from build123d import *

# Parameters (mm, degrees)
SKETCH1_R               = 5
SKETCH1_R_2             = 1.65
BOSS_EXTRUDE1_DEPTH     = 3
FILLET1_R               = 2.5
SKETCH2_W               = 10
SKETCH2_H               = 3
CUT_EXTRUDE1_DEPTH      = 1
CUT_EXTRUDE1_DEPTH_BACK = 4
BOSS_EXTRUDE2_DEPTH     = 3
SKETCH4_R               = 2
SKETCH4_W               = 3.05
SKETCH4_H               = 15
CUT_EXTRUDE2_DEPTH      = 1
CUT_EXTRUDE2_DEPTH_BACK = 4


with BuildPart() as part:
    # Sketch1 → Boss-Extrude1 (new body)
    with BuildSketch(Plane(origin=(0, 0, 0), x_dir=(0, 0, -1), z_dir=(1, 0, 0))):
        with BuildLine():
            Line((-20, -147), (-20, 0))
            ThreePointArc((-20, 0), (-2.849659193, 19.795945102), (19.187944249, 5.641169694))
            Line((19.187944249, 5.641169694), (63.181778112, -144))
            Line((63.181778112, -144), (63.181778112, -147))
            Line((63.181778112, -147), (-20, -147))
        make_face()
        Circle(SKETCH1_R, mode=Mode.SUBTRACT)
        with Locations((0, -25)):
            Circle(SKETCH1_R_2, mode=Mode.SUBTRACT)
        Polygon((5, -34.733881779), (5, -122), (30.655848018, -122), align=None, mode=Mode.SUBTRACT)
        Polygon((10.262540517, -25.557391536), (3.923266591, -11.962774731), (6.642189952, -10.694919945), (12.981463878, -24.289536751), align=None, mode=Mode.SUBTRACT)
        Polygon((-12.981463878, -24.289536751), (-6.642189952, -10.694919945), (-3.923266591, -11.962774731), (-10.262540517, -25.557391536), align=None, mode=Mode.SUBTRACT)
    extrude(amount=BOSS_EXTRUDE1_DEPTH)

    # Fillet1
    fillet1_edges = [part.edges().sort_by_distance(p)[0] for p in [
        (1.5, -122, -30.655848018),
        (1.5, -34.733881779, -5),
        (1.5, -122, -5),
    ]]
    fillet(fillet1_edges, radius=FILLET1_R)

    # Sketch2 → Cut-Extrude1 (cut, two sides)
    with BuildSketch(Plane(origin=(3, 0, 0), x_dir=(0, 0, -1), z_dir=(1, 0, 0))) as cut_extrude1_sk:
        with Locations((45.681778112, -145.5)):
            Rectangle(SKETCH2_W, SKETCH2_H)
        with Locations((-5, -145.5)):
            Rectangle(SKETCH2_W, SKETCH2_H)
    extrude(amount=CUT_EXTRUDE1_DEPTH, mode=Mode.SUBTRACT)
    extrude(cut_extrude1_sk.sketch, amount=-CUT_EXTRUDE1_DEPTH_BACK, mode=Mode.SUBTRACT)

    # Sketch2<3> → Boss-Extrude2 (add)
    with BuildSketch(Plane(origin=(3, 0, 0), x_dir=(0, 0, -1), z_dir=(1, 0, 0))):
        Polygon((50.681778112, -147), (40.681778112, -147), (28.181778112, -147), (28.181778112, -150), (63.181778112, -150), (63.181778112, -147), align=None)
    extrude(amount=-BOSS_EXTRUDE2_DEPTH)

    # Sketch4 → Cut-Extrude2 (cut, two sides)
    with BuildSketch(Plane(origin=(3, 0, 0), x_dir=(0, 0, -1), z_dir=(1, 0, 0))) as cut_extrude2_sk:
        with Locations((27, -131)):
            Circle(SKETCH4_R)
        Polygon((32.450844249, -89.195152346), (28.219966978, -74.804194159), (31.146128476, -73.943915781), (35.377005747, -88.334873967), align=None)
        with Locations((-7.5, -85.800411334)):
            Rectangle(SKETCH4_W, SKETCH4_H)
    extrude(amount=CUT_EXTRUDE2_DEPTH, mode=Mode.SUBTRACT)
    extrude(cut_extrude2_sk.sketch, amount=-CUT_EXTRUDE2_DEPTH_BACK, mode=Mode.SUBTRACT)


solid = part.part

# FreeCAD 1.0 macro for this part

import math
import FreeCAD as App
import Part
import Sketcher
from FreeCAD import Vector
Q = App.Units.Quantity


def edges_at(feature, points):
    """Names of the edges that pass closest to the given points."""
    edges = feature.Shape.Edges
    near = lambda p: min(range(len(edges)), key=lambda i: edges[i].distToShape(Part.Vertex(*p))[0])
    return sorted({f"Edge{near(p) + 1}" for p in points})


def add_polygon(sketch, points):
    """Adds a closed chain of lines whose ends are joined by coincident constraints."""
    first, n = sketch.GeometryCount, len(points)
    for a, b in zip(points, points[1:] + points[:1]):
        sketch.addGeometry(Part.LineSegment(App.Vector(*a, 0), App.Vector(*b, 0)), False)
    for i in range(n):
        sketch.addConstraint(Sketcher.Constraint("Coincident", first + i, 2, first + (i + 1) % n, 1))

doc = App.newDocument("Part")
body = doc.addObject("PartDesign::Body", "Body")

# Sketch on YZ plane
sketch1 = doc.addObject("Sketcher::SketchObject", "Sketch")
body.addObject(sketch1)
sketch1.AttachmentSupport = (doc.YZ_Plane, [""])
sketch1.MapMode = "FlatFace"
sketch1.addGeometry(Part.LineSegment(Vector(0, 20, 0), Vector(-147, 20, 0)), False)  # 0
sketch1.addGeometry(Part.LineSegment(Vector(-147, 20, 0), Vector(-147, -63.2, 0)), False)  # 1
sketch1.addGeometry(Part.LineSegment(Vector(-147, -63.2, 0), Vector(-144, -63.2, 0)), False)  # 2
sketch1.addGeometry(Part.LineSegment(Vector(-144, -63.2, 0), Vector(5.6, -19.2, 0)), False)  # 3
sketch1.addGeometry(Part.ArcOfCircle(Part.Circle(Vector(0, 0, 0), Vector(0, 0, 1), 20), math.radians(-74), math.radians(90)), False)  # 4
add_polygon(sketch1, [(-34.7, -5), (-122, -30.7), (-122, -5)])  # lines 5-7
add_polygon(sketch1, [(-25.6, -10.3), (-12, -3.9), (-10.7, -6.6), (-24.3, -13)])  # lines 8-11
sketch1.addGeometry(Part.Circle(Vector(-25, 0, 0), Vector(0, 0, 1), 1.6), False)  # 12
sketch1.addGeometry(Part.Circle(Vector(0, 0, 0), Vector(0, 0, 1), 5), False)  # 13
add_polygon(sketch1, [(-24.3, 13), (-10.7, 6.6), (-12, 3.9), (-25.6, 10.3)])  # lines 14-17
sketch1.addConstraint(Sketcher.Constraint("Coincident", 0, 2, 1, 1))
sketch1.addConstraint(Sketcher.Constraint("Coincident", 1, 2, 2, 1))
sketch1.addConstraint(Sketcher.Constraint("Coincident", 2, 2, 3, 1))
sketch1.addConstraint(Sketcher.Constraint("Tangent", 3, 2, 4, 1))
sketch1.addConstraint(Sketcher.Constraint("Tangent", 4, 2, 0, 1))
sketch1.addConstraint(Sketcher.Constraint("Horizontal", 0))
sketch1.addConstraint(Sketcher.Constraint("Vertical", 1))
sketch1.addConstraint(Sketcher.Constraint("Horizontal", 2))
sketch1.addConstraint(Sketcher.Constraint("Vertical", 6))
sketch1.addConstraint(Sketcher.Constraint("Horizontal", 7))
sketch1.addConstraint(Sketcher.Constraint("Coincident", 4, 3, -1, 1))
sketch1.addConstraint(Sketcher.Constraint("Coincident", 13, 3, -1, 1))
sketch1.addConstraint(Sketcher.Constraint("Symmetric", 9, 2, 14, 2, -1))
sketch1.addConstraint(Sketcher.Constraint("Symmetric", 8, 2, 15, 2, -1))
sketch1.addConstraint(Sketcher.Constraint("Symmetric", 11, 2, 16, 2, -1))
sketch1.addConstraint(Sketcher.Constraint("Symmetric", 10, 2, 17, 2, -1))
sketch1.addConstraint(Sketcher.Constraint("PointOnObject", 12, 3, -1))
sketch1.addConstraint(Sketcher.Constraint("Parallel", 3, 5))
sketch1.addConstraint(Sketcher.Constraint("Perpendicular", 8, 9))
sketch1.addConstraint(Sketcher.Constraint("Perpendicular", 9, 10))
sketch1.addConstraint(Sketcher.Constraint("Perpendicular", 10, 11))
sketch1.addConstraint(Sketcher.Constraint("Diameter", 13, Q("10 mm")))
sketch1.addConstraint(Sketcher.Constraint("Radius", 4, Q("20 mm")))
sketch1.addConstraint(Sketcher.Constraint("Diameter", 12, Q("3.3 mm")))
sketch1.addConstraint(Sketcher.Constraint("DistanceX", 0, 2, 0, 1, Q("147 mm")))
sketch1.addConstraint(Sketcher.Constraint("DistanceX", 2, 1, 2, 2, Q("3 mm")))
sketch1.addConstraint(Sketcher.Constraint("Angle", 8, Q("25 deg")))
sketch1.addConstraint(Sketcher.Constraint("Distance", 8, Q("15 mm")))
sketch1.addConstraint(Sketcher.Constraint("Distance", 9, Q("3 mm")))
sketch1.addConstraint(Sketcher.Constraint("DistanceX", 12, 3, -1, 1, Q("25 mm")))
sketch1.addConstraint(Sketcher.Constraint("DistanceX", 5, 2, -1, 1, Q("122 mm")))
sketch1.addConstraint(Sketcher.Constraint("DistanceY", 6, 2, -1, 1, Q("5 mm")))
sketch1.addConstraint(Sketcher.Constraint("DistanceX", 7, 1, 7, 2, Q("87.266118 mm")))
sketch1.addConstraint(Sketcher.Constraint("DistanceY", 1, 2, 1, 1, Q("83.181778 mm")))
sketch1.addConstraint(Sketcher.Constraint("DistanceX", 9, 2, -1, 1, Q("10.69492 mm")))
sketch1.addConstraint(Sketcher.Constraint("DistanceY", 9, 2, -1, 1, Q("6.64219 mm")))
pad1 = doc.addObject("PartDesign::Pad", "Pad")
body.addObject(pad1)
pad1.Profile = sketch1
pad1.Length = 3
doc.recompute()

fillet = doc.addObject("PartDesign::Fillet", "Fillet")
body.addObject(fillet)
fillet.Base = (pad1, edges_at(pad1, [(1.5, -122, -30.656), (1.5, -34.734, -5), (1.5, -122, -5)]))
fillet.Radius = 2.5

# Sketch on YZ plane
sketch2 = doc.addObject("Sketcher::SketchObject", "Sketch001")
body.addObject(sketch2)
sketch2.AttachmentSupport = (doc.YZ_Plane, [""])
sketch2.MapMode = "FlatFace"
sketch2.AttachmentOffset = App.Placement(Vector(0, 0, 3), App.Rotation())
add_polygon(sketch2, [(-144, -40.7), (-147, -40.7), (-147, -50.7), (-144, -50.7)])  # lines 0-3
add_polygon(sketch2, [(-144, 10), (-147, 10), (-147, 0), (-144, 0)])  # lines 4-7
sketch2.addConstraint(Sketcher.Constraint("Horizontal", 0))
sketch2.addConstraint(Sketcher.Constraint("Vertical", 1))
sketch2.addConstraint(Sketcher.Constraint("Horizontal", 2))
sketch2.addConstraint(Sketcher.Constraint("Vertical", 3))
sketch2.addConstraint(Sketcher.Constraint("Horizontal", 4))
sketch2.addConstraint(Sketcher.Constraint("Vertical", 5))
sketch2.addConstraint(Sketcher.Constraint("Horizontal", 6))
sketch2.addConstraint(Sketcher.Constraint("Vertical", 7))
sketch2.addConstraint(Sketcher.Constraint("PointOnObject", 5, 2, -1))
sketch2.addConstraint(Sketcher.Constraint("Vertical", 1, 2, 4, 2))
sketch2.addConstraint(Sketcher.Constraint("Vertical", 3, 2, 6, 2))
sketch2.addConstraint(Sketcher.Constraint("Equal", 3, 5))
sketch2.addConstraint(Sketcher.Constraint("DistanceX", 0, 2, 0, 1, Q("3 mm")))
sketch2.addConstraint(Sketcher.Constraint("DistanceY", 1, 2, 1, 1, Q("10 mm")))
sketch2.addConstraint(Sketcher.Constraint("DistanceX", 0, 2, -1, 1, Q("147 mm")))
sketch2.addConstraint(Sketcher.Constraint("DistanceY", 0, 2, -1, 1, Q("40.681778 mm")))
pocket1 = doc.addObject("PartDesign::Pocket", "Pocket")
body.addObject(pocket1)
pocket1.Profile = sketch2
pocket1.Type = "ThroughAll"
pocket1.Midplane = True

# Sketch on YZ plane
sketch3 = doc.addObject("Sketcher::SketchObject", "Sketch002")
body.addObject(sketch3)
sketch3.AttachmentSupport = (doc.YZ_Plane, [""])
sketch3.MapMode = "FlatFace"
sketch3.AttachmentOffset = App.Placement(Vector(0, 0, 3), App.Rotation())
add_polygon(sketch3, [(-147, -28.2), (-150, -28.2), (-150, -63.2), (-147, -63.2)])  # lines 0-3
sketch3.addConstraint(Sketcher.Constraint("Horizontal", 0))
sketch3.addConstraint(Sketcher.Constraint("Vertical", 1))
sketch3.addConstraint(Sketcher.Constraint("Horizontal", 2))
sketch3.addConstraint(Sketcher.Constraint("Vertical", 3))
sketch3.addConstraint(Sketcher.Constraint("DistanceX", 0, 2, 0, 1, Q("3 mm")))
sketch3.addConstraint(Sketcher.Constraint("DistanceY", 1, 2, 1, 1, Q("35 mm")))
sketch3.addConstraint(Sketcher.Constraint("DistanceX", 0, 2, -1, 1, Q("150 mm")))
sketch3.addConstraint(Sketcher.Constraint("DistanceY", 0, 2, -1, 1, Q("28.181778 mm")))
pad2 = doc.addObject("PartDesign::Pad", "Pad001")
body.addObject(pad2)
pad2.Profile = sketch3
pad2.Length = 3
pad2.Reversed = True

# Sketch on YZ plane
sketch4 = doc.addObject("Sketcher::SketchObject", "Sketch003")
body.addObject(sketch4)
sketch4.AttachmentSupport = (doc.YZ_Plane, [""])
sketch4.MapMode = "FlatFace"
sketch4.AttachmentOffset = App.Placement(Vector(0, 0, 3), App.Rotation())
sketch4.addGeometry(Part.Circle(Vector(-131, -27, 0), Vector(0, 0, 1), 2), False)  # 0
add_polygon(sketch4, [(-74.8, -28.2), (-89.2, -32.5), (-88.3, -35.4), (-73.9, -31.1)])  # lines 1-4
add_polygon(sketch4, [(-78.3, 9), (-93.3, 9), (-93.3, 6), (-78.3, 6)])  # lines 5-8
sketch4.addConstraint(Sketcher.Constraint("Horizontal", 5))
sketch4.addConstraint(Sketcher.Constraint("Vertical", 6))
sketch4.addConstraint(Sketcher.Constraint("Horizontal", 7))
sketch4.addConstraint(Sketcher.Constraint("Vertical", 8))
sketch4.addConstraint(Sketcher.Constraint("Perpendicular", 1, 2))
sketch4.addConstraint(Sketcher.Constraint("Perpendicular", 2, 3))
sketch4.addConstraint(Sketcher.Constraint("Perpendicular", 3, 4))
sketch4.addConstraint(Sketcher.Constraint("Diameter", 0, Q("4 mm")))
sketch4.addConstraint(Sketcher.Constraint("DistanceX", 5, 2, 5, 1, Q("15 mm")))
sketch4.addConstraint(Sketcher.Constraint("Distance", 1, Q("15 mm")))
sketch4.addConstraint(Sketcher.Constraint("DistanceX", 0, 3, -1, 1, Q("131 mm")))
sketch4.addConstraint(Sketcher.Constraint("DistanceY", 0, 3, -1, 1, Q("27 mm")))
sketch4.addConstraint(Sketcher.Constraint("DistanceY", 6, 2, 6, 1, Q("3.05 mm")))
sketch4.addConstraint(Sketcher.Constraint("Distance", 2, Q("3.05 mm")))
sketch4.addConstraint(Sketcher.Constraint("DistanceY", -1, 1, 5, 2, Q("9.025 mm")))
sketch4.addConstraint(Sketcher.Constraint("DistanceY", 3, 2, -1, 1, Q("31.146128 mm")))
sketch4.addConstraint(Sketcher.Constraint("DistanceX", 5, 2, -1, 1, Q("93.300411 mm")))
sketch4.addConstraint(Sketcher.Constraint("DistanceX", 1, 2, 2, 2, Q("0.860278 mm")))
sketch4.addConstraint(Sketcher.Constraint("DistanceX", 5, 2, 1, 2, Q("4.105259 mm")))
pocket2 = doc.addObject("PartDesign::Pocket", "Pocket001")
body.addObject(pocket2)
pocket2.Profile = sketch4
pocket2.Type = "ThroughAll"
pocket2.Midplane = True

doc.recompute()
